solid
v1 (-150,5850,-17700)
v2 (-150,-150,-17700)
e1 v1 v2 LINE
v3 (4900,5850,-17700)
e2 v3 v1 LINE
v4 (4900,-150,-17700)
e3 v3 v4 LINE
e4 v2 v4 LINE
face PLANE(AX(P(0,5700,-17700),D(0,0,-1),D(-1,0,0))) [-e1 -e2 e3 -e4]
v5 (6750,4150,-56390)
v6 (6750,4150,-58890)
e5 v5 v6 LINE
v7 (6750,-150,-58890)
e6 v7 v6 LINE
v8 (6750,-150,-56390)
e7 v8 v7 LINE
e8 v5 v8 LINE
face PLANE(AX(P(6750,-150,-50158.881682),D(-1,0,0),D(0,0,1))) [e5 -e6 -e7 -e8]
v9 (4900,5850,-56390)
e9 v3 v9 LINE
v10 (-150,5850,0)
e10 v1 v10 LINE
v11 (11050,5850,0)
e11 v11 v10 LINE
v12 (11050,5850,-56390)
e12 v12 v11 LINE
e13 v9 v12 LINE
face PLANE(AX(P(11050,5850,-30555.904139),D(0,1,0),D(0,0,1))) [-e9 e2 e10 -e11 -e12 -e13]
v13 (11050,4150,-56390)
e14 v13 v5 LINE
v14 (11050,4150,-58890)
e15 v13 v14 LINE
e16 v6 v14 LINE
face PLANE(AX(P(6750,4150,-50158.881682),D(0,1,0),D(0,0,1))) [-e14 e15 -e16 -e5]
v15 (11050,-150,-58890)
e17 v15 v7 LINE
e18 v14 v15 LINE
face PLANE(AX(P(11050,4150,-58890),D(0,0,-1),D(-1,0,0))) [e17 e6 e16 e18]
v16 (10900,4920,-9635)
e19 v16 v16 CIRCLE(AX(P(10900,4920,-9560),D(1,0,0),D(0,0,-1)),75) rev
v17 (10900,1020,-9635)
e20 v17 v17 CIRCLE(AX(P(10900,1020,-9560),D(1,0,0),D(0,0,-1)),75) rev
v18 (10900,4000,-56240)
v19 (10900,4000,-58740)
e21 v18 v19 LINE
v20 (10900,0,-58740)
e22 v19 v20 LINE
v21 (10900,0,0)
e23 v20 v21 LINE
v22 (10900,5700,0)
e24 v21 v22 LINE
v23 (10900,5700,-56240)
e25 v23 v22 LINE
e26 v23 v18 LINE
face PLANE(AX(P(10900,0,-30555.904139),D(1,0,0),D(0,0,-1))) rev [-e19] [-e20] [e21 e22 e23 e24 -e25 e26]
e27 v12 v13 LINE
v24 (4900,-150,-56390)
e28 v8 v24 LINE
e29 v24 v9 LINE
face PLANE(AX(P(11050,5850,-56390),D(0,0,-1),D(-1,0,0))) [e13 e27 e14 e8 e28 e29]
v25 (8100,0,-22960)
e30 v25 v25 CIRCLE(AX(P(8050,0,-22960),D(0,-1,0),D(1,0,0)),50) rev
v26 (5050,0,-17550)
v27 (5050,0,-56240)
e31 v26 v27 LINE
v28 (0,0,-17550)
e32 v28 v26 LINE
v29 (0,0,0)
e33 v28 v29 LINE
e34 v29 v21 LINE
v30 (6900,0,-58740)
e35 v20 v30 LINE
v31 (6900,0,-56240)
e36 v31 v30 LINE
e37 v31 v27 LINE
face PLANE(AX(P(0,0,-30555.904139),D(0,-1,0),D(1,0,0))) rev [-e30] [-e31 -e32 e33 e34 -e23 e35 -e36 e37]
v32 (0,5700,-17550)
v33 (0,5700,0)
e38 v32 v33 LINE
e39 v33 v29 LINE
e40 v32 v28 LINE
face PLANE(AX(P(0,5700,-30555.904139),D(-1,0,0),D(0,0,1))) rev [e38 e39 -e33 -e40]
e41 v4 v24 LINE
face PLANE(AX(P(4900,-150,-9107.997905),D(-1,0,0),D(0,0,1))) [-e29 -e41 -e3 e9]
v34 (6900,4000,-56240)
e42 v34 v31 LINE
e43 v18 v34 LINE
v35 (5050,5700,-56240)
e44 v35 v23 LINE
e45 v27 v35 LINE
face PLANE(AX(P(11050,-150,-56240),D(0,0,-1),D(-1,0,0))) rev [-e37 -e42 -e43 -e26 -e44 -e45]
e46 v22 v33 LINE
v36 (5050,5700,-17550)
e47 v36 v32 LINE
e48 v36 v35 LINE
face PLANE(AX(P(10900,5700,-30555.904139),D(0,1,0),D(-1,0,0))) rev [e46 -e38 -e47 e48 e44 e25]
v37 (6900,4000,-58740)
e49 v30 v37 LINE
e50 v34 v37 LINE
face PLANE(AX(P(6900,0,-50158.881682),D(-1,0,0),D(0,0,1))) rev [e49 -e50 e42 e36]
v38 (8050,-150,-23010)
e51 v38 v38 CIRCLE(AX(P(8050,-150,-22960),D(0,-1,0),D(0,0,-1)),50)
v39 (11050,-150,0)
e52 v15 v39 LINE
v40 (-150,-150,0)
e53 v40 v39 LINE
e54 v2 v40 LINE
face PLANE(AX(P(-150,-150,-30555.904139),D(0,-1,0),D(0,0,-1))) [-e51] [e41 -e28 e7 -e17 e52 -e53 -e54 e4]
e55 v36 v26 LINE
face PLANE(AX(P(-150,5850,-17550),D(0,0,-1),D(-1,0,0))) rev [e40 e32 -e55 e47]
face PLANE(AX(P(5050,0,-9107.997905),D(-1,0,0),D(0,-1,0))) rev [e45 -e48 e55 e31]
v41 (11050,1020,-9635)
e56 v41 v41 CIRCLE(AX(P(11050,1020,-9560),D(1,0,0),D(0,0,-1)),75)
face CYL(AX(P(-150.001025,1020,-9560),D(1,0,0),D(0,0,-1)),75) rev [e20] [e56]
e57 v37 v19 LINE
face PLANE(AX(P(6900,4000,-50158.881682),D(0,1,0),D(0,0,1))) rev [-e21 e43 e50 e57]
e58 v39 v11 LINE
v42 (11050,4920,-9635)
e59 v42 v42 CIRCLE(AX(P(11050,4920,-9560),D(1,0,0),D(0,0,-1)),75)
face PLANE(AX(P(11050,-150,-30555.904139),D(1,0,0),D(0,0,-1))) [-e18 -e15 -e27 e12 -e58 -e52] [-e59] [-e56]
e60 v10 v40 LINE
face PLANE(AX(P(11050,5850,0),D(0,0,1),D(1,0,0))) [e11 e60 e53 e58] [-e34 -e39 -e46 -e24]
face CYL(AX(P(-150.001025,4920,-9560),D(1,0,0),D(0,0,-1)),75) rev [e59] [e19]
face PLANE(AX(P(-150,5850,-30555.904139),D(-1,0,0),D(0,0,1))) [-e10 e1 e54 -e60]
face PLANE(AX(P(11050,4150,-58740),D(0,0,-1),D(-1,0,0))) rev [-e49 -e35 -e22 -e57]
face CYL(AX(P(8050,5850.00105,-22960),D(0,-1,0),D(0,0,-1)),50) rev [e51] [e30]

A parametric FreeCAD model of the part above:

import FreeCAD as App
import Part
import Sketcher
from FreeCAD import Vector
Q = App.Units.Quantity


def add_polygon(sketch, points):
    """Adds a closed chain of lines whose ends are joined by coincident constraints."""
    first, n = sketch.GeometryCount, len(points)
    for a, b in zip(points, points[1:] + points[:1]):
        sketch.addGeometry(Part.LineSegment(App.Vector(*a, 0), App.Vector(*b, 0)), False)
    for i in range(n):
        sketch.addConstraint(Sketcher.Constraint("Coincident", first + i, 2, first + (i + 1) % n, 1))

doc = App.newDocument("Part")
params = doc.addObject("Spreadsheet::Sheet", "Params")
for row, (alias, value) in enumerate([
    ("sketch1_width", "11200 mm"),
    ("sketch1_width2", "10900 mm"),
    ("sketch1_height", "6000 mm"),
    ("sketch1_height2", "5700 mm"),
    ("pad1_length", "17700 mm"),
    ("sketch2_width", "6150 mm"),
    ("sketch2_width2", "5850 mm"),
    ("sketch2_height", "6000 mm"),
    ("sketch2_height2", "5700 mm"),
    ("pad2_length", "38540 mm"),
    ("sketch3_width", "4300 mm"),
    ("sketch3_width2", "4000 mm"),
    ("pad3_length", "2500 mm"),
    ("sketch4_width", "4300 mm"),
    ("pad4_length", "150 mm"),
    ("sketch5_width", "4300 mm"),
    ("sketch5_width2", "1850 mm"),
    ("sketch5_height", "1700 mm"),
    ("pad5_length", "150 mm"),
    ("sketch6_width", "5200 mm"),
    ("sketch6_height", "6000 mm"),
    ("pad6_length", "150 mm"),
    ("sketch7_diameter", "150 mm"),
    ("sketch8_diameter", "150 mm"),
    ("sketch9_diameter", "100 mm"),
], start=1):
    params.set(f"A{row}", alias)
    params.set(f"B{row}", "=" + value)
    params.setAlias(f"B{row}", alias)

body = doc.addObject("PartDesign::Body", "Body")

sketch1 = body.newObject("Sketcher::SketchObject", "Sketch")
sketch1.AttachmentSupport = (doc.getObject("XY_Plane"), [""])
sketch1.MapMode = "FlatFace"
add_polygon(sketch1, [(-150, 5850), (-150, -150), (11050, -150), (11050, 5850)])
add_polygon(sketch1, [(10900, 0), (0, 0), (0, 5700), (10900, 5700)])
sketch1.addConstraint(Sketcher.Constraint("Vertical", 0))
sketch1.addConstraint(Sketcher.Constraint("Horizontal", 1))
sketch1.addConstraint(Sketcher.Constraint("Vertical", 2))
sketch1.addConstraint(Sketcher.Constraint("Horizontal", 3))
sketch1.addConstraint(Sketcher.Constraint("Horizontal", 4))
sketch1.addConstraint(Sketcher.Constraint("Vertical", 5))
sketch1.addConstraint(Sketcher.Constraint("Horizontal", 6))
sketch1.addConstraint(Sketcher.Constraint("Vertical", 7))
sketch1.addConstraint(Sketcher.Constraint("Coincident", 4, 2, -1, 1))
sketch1.addConstraint(Sketcher.Constraint("DistanceX", 1, 1, 1, 2, Q("11200 mm")))
sketch1.addConstraint(Sketcher.Constraint("DistanceX", 4, 2, 4, 1, Q("10900 mm")))
sketch1.addConstraint(Sketcher.Constraint("DistanceY", 0, 2, 0, 1, Q("6000 mm")))
sketch1.addConstraint(Sketcher.Constraint("DistanceY", 5, 1, 5, 2, Q("5700 mm")))
sketch1.addConstraint(Sketcher.Constraint("DistanceX", 0, 2, -1, 1, Q("150 mm")))
sketch1.addConstraint(Sketcher.Constraint("DistanceY", 0, 2, -1, 1, Q("150 mm")))
sketch1.setExpression("Constraints[17]", "Params.sketch1_width")
sketch1.setExpression("Constraints[18]", "Params.sketch1_width2")
sketch1.setExpression("Constraints[19]", "Params.sketch1_height")
sketch1.setExpression("Constraints[20]", "Params.sketch1_height2")
pad1 = body.newObject("PartDesign::Pad", "Pad")
pad1.Profile = sketch1
pad1.setExpression("Length", "Params.pad1_length")
pad1.Reversed = True

sketch2 = body.newObject("Sketcher::SketchObject", "Sketch001")
sketch2.AttachmentSupport = (doc.getObject("XY_Plane"), [""])
sketch2.MapMode = "FlatFace"
sketch2.AttachmentOffset = App.Placement(Vector(0, 0, -56240), App.Rotation())
add_polygon(sketch2, [(11050, 5850), (11050, -150), (4900, -150), (4900, 5850)])
add_polygon(sketch2, [(5050, 0), (10900, 0), (10900, 5700), (5050, 5700)])
sketch2.addConstraint(Sketcher.Constraint("Vertical", 0))
sketch2.addConstraint(Sketcher.Constraint("Horizontal", 1))
sketch2.addConstraint(Sketcher.Constraint("Vertical", 2))
sketch2.addConstraint(Sketcher.Constraint("Horizontal", 3))
sketch2.addConstraint(Sketcher.Constraint("Horizontal", 4))
sketch2.addConstraint(Sketcher.Constraint("Vertical", 5))
sketch2.addConstraint(Sketcher.Constraint("Horizontal", 6))
sketch2.addConstraint(Sketcher.Constraint("Vertical", 7))
sketch2.addConstraint(Sketcher.Constraint("PointOnObject", 4, 2, -1))
sketch2.addConstraint(Sketcher.Constraint("DistanceX", 1, 2, 1, 1, Q("6150 mm")))
sketch2.addConstraint(Sketcher.Constraint("DistanceX", 4, 1, 4, 2, Q("5850 mm")))
sketch2.addConstraint(Sketcher.Constraint("DistanceY", 0, 2, 0, 1, Q("6000 mm")))
sketch2.addConstraint(Sketcher.Constraint("DistanceY", 5, 1, 5, 2, Q("5700 mm")))
sketch2.addConstraint(Sketcher.Constraint("DistanceX", -1, 1, 0, 2, Q("11050 mm")))
sketch2.addConstraint(Sketcher.Constraint("DistanceY", 0, 2, -1, 1, Q("150 mm")))
sketch2.addConstraint(Sketcher.Constraint("DistanceX", -1, 1, 4, 2, Q("10900 mm")))
sketch2.setExpression("Constraints[17]", "Params.sketch2_width")
sketch2.setExpression("Constraints[18]", "Params.sketch2_width2")
sketch2.setExpression("Constraints[19]", "Params.sketch2_height")
sketch2.setExpression("Constraints[20]", "Params.sketch2_height2")
pad2 = body.newObject("PartDesign::Pad", "Pad001")
pad2.Profile = sketch2
pad2.setExpression("Length", "Params.pad2_length")

sketch3 = body.newObject("Sketcher::SketchObject", "Sketch002")
sketch3.AttachmentSupport = (doc.getObject("XY_Plane"), [""])
sketch3.MapMode = "FlatFace"
sketch3.AttachmentOffset = App.Placement(Vector(0, 0, -58740), App.Rotation())
add_polygon(sketch3, [(11050, 4150), (11050, -150), (6750, -150), (6750, 4150)])
add_polygon(sketch3, [(6900, 0), (10900, 0), (10900, 4000), (6900, 4000)])
sketch3.addConstraint(Sketcher.Constraint("Vertical", 0))
sketch3.addConstraint(Sketcher.Constraint("Horizontal", 1))
sketch3.addConstraint(Sketcher.Constraint("Vertical", 2))
sketch3.addConstraint(Sketcher.Constraint("Horizontal", 3))
sketch3.addConstraint(Sketcher.Constraint("Horizontal", 4))
sketch3.addConstraint(Sketcher.Constraint("Vertical", 5))
sketch3.addConstraint(Sketcher.Constraint("Horizontal", 6))
sketch3.addConstraint(Sketcher.Constraint("Vertical", 7))
sketch3.addConstraint(Sketcher.Constraint("PointOnObject", 4, 2, -1))
sketch3.addConstraint(Sketcher.Constraint("Equal", 3, 0))
sketch3.addConstraint(Sketcher.Constraint("Equal", 6, 5))
sketch3.addConstraint(Sketcher.Constraint("DistanceX", 1, 2, 1, 1, Q("4300 mm")))
sketch3.addConstraint(Sketcher.Constraint("DistanceX", 4, 1, 4, 2, Q("4000 mm")))
sketch3.addConstraint(Sketcher.Constraint("DistanceX", -1, 1, 0, 2, Q("11050 mm")))
sketch3.addConstraint(Sketcher.Constraint("DistanceY", 0, 2, -1, 1, Q("150 mm")))
sketch3.addConstraint(Sketcher.Constraint("DistanceX", -1, 1, 4, 2, Q("10900 mm")))
sketch3.setExpression("Constraints[19]", "Params.sketch3_width")
sketch3.setExpression("Constraints[20]", "Params.sketch3_width2")
pad3 = body.newObject("PartDesign::Pad", "Pad002")
pad3.Profile = sketch3
pad3.setExpression("Length", "Params.pad3_length")

sketch4 = body.newObject("Sketcher::SketchObject", "Sketch003")
sketch4.AttachmentSupport = (doc.getObject("XY_Plane"), [""])
sketch4.MapMode = "FlatFace"
sketch4.AttachmentOffset = App.Placement(Vector(0, 0, -58740), App.Rotation())
add_polygon(sketch4, [(11050, 4150), (11050, -150), (6750, -150), (6750, 4150)])
sketch4.addConstraint(Sketcher.Constraint("Vertical", 0))
sketch4.addConstraint(Sketcher.Constraint("Horizontal", 1))
sketch4.addConstraint(Sketcher.Constraint("Vertical", 2))
sketch4.addConstraint(Sketcher.Constraint("Horizontal", 3))
sketch4.addConstraint(Sketcher.Constraint("Equal", 3, 0))
sketch4.addConstraint(Sketcher.Constraint("DistanceX", 1, 2, 1, 1, Q("4300 mm")))
sketch4.addConstraint(Sketcher.Constraint("DistanceX", -1, 1, 0, 2, Q("11050 mm")))
sketch4.addConstraint(Sketcher.Constraint("DistanceY", 0, 2, -1, 1, Q("150 mm")))
sketch4.setExpression("Constraints[9]", "Params.sketch4_width")
pad4 = body.newObject("PartDesign::Pad", "Pad003")
pad4.Profile = sketch4
pad4.setExpression("Length", "Params.pad4_length")
pad4.Reversed = True

sketch5 = body.newObject("Sketcher::SketchObject", "Sketch004")
sketch5.AttachmentSupport = (doc.getObject("XY_Plane"), [""])
sketch5.MapMode = "FlatFace"
sketch5.AttachmentOffset = App.Placement(Vector(0, 0, -56240), App.Rotation())
add_polygon(sketch5, [(11050, 5850), (11050, 4150), (6750, 4150), (6750, -150), (4900, -150), (4900, 5850)])
sketch5.addConstraint(Sketcher.Constraint("Vertical", 0))
sketch5.addConstraint(Sketcher.Constraint("Horizontal", 1))
sketch5.addConstraint(Sketcher.Constraint("Vertical", 2))
sketch5.addConstraint(Sketcher.Constraint("Horizontal", 3))
sketch5.addConstraint(Sketcher.Constraint("Vertical", 4))
sketch5.addConstraint(Sketcher.Constraint("Horizontal", 5))
sketch5.addConstraint(Sketcher.Constraint("Equal", 1, 2))
sketch5.addConstraint(Sketcher.Constraint("DistanceX", 1, 2, 1, 1, Q("4300 mm")))
sketch5.addConstraint(Sketcher.Constraint("DistanceX", 3, 2, 3, 1, Q("1850 mm")))
sketch5.addConstraint(Sketcher.Constraint("DistanceY", 0, 2, 0, 1, Q("1700 mm")))
sketch5.addConstraint(Sketcher.Constraint("DistanceX", -1, 1, 0, 2, Q("11050 mm")))
sketch5.addConstraint(Sketcher.Constraint("DistanceY", -1, 1, 0, 2, Q("4150 mm")))
sketch5.setExpression("Constraints[13]", "Params.sketch5_width")
sketch5.setExpression("Constraints[14]", "Params.sketch5_width2")
sketch5.setExpression("Constraints[15]", "Params.sketch5_height")
pad5 = body.newObject("PartDesign::Pad", "Pad004")
pad5.Profile = sketch5
pad5.setExpression("Length", "Params.pad5_length")
pad5.Reversed = True

sketch6 = body.newObject("Sketcher::SketchObject", "Sketch005")
sketch6.AttachmentSupport = (doc.getObject("XY_Plane"), [""])
sketch6.MapMode = "FlatFace"
sketch6.AttachmentOffset = App.Placement(Vector(0, 0, -17700), App.Rotation())
add_polygon(sketch6, [(5050, 5850), (5050, -150), (-150, -150), (-150, 5850)])
sketch6.addConstraint(Sketcher.Constraint("Vertical", 0))
sketch6.addConstraint(Sketcher.Constraint("Horizontal", 1))
sketch6.addConstraint(Sketcher.Constraint("Vertical", 2))
sketch6.addConstraint(Sketcher.Constraint("Horizontal", 3))
sketch6.addConstraint(Sketcher.Constraint("DistanceX", 1, 2, 1, 1, Q("5200 mm")))
sketch6.addConstraint(Sketcher.Constraint("DistanceY", 0, 2, 0, 1, Q("6000 mm")))
sketch6.addConstraint(Sketcher.Constraint("DistanceX", -1, 1, 0, 2, Q("5050 mm")))
sketch6.addConstraint(Sketcher.Constraint("DistanceY", 0, 2, -1, 1, Q("150 mm")))
sketch6.setExpression("Constraints[8]", "Params.sketch6_width")
sketch6.setExpression("Constraints[9]", "Params.sketch6_height")
pad6 = body.newObject("PartDesign::Pad", "Pad005")
pad6.Profile = sketch6
pad6.setExpression("Length", "Params.pad6_length")

sketch7 = body.newObject("Sketcher::SketchObject", "Sketch006")
sketch7.AttachmentSupport = (doc.getObject("YZ_Plane"), [""])
sketch7.MapMode = "FlatFace"
sketch7.AttachmentOffset = App.Placement(Vector(0, 0, 11050), App.Rotation())
sketch7.addGeometry(Part.Circle(Vector(4920, -9560, 0), Vector(0, 0, 1), 75), False)
sketch7.addConstraint(Sketcher.Constraint("Diameter", 0, Q("150 mm")))
sketch7.addConstraint(Sketcher.Constraint("DistanceX", -1, 1, 0, 3, Q("4920 mm")))
sketch7.addConstraint(Sketcher.Constraint("DistanceY", 0, 3, -1, 1, Q("9560 mm")))
sketch7.setExpression("Constraints[0]", "Params.sketch7_diameter")
pocket1 = body.newObject("PartDesign::Pocket", "Pocket")
pocket1.Profile = sketch7
pocket1.Type = "UpToFirst"

sketch8 = body.newObject("Sketcher::SketchObject", "Sketch007")
sketch8.AttachmentSupport = (doc.getObject("YZ_Plane"), [""])
sketch8.MapMode = "FlatFace"
sketch8.AttachmentOffset = App.Placement(Vector(0, 0, 11050), App.Rotation())
sketch8.addGeometry(Part.Circle(Vector(1020, -9560, 0), Vector(0, 0, 1), 75), False)
sketch8.addConstraint(Sketcher.Constraint("Diameter", 0, Q("150 mm")))
sketch8.addConstraint(Sketcher.Constraint("DistanceX", -1, 1, 0, 3, Q("1020 mm")))
sketch8.addConstraint(Sketcher.Constraint("DistanceY", 0, 3, -1, 1, Q("9560 mm")))
sketch8.setExpression("Constraints[0]", "Params.sketch8_diameter")
pocket2 = body.newObject("PartDesign::Pocket", "Pocket001")
pocket2.Profile = sketch8
pocket2.Type = "UpToFirst"

sketch9 = body.newObject("Sketcher::SketchObject", "Sketch008")
sketch9.AttachmentSupport = (doc.getObject("XZ_Plane"), [""])
sketch9.MapMode = "FlatFace"
sketch9.AttachmentOffset = App.Placement(Vector(0, 0, 150), App.Rotation())
sketch9.addGeometry(Part.Circle(Vector(8050, -22960, 0), Vector(0, 0, 1), 50), False)
sketch9.addConstraint(Sketcher.Constraint("Diameter", 0, Q("100 mm")))
sketch9.addConstraint(Sketcher.Constraint("DistanceX", -1, 1, 0, 3, Q("8050 mm")))
sketch9.addConstraint(Sketcher.Constraint("DistanceY", 0, 3, -1, 1, Q("22960 mm")))
sketch9.setExpression("Constraints[0]", "Params.sketch9_diameter")
pocket3 = body.newObject("PartDesign::Pocket", "Pocket002")
pocket3.Profile = sketch9
pocket3.Type = "UpToFirst"

doc.recompute()
